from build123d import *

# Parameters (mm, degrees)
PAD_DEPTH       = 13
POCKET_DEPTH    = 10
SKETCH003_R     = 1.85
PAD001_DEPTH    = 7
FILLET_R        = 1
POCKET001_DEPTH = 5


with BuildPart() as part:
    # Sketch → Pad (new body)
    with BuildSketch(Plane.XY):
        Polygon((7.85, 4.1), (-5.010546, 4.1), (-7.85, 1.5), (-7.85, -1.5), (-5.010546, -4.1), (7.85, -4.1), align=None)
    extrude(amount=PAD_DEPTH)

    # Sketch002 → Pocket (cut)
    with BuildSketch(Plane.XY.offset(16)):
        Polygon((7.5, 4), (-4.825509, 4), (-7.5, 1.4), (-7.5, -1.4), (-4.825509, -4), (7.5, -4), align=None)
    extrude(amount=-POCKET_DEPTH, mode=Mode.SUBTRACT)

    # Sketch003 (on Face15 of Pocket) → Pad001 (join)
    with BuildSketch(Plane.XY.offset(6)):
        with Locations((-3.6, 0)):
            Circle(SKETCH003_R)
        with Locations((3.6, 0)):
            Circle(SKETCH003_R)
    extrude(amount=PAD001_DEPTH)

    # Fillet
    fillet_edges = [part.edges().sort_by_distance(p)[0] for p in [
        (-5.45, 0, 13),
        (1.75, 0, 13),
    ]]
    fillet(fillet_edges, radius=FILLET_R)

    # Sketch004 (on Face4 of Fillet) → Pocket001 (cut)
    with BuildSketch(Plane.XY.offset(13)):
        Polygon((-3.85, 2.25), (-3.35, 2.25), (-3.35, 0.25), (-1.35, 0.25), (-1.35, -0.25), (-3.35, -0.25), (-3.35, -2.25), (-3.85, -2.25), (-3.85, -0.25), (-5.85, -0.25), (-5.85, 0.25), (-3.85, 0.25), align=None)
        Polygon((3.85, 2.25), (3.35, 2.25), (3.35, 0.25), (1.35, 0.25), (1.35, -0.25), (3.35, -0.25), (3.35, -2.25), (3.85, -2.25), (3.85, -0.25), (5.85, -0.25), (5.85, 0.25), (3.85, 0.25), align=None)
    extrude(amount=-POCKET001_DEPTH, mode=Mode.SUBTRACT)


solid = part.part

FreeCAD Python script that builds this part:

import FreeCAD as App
import Part
import Sketcher


def edges_at(feature, points):
    """Names of the edges that pass closest to the given points."""
    edges = feature.Shape.Edges
    near = lambda p: min(range(len(edges)), key=lambda i: edges[i].distToShape(Part.Vertex(*p))[0])
    return sorted({f"Edge{near(p) + 1}" for p in points})


def add_polygon(sketch, points):
    """Adds a closed chain of lines whose ends are joined by coincident constraints."""
    first, n = sketch.GeometryCount, len(points)
    for a, b in zip(points, points[1:] + points[:1]):
        sketch.addGeometry(Part.LineSegment(App.Vector(*a, 0), App.Vector(*b, 0)), False)
    for i in range(n):
        sketch.addConstraint(Sketcher.Constraint("Coincident", first + i, 2, first + (i + 1) % n, 1))

doc = App.newDocument("Part")
body = doc.addObject("PartDesign::Body", "Body")

# Sketch on XY plane
sketch1 = body.newObject("Sketcher::SketchObject", "Sketch")
sketch1.AttachmentSupport = (doc.getObject("XY_Plane"), [""])
sketch1.MapMode = "FlatFace"
add_polygon(sketch1, [(7.8, 4.1), (-5, 4.1), (-7.8, 1.5), (-7.8, -1.5), (-5, -4.1), (7.8, -4.1)])  # lines 0-5
sketch1.addConstraint([
    Sketcher.Constraint("Horizontal", 0),
    Sketcher.Constraint("Vertical", 2),
    Sketcher.Constraint("Horizontal", 4),
    Sketcher.Constraint("Vertical", 5),
    Sketcher.Constraint("Symmetric", 0, 2, 3, 2, -1),
    Sketcher.Constraint("Equal", 1, 3),
    Sketcher.Constraint("DistanceY", 2, 2, 2, 1, 3.0),
    Sketcher.Constraint("DistanceY", 5, 1, 5, 2, 8.2),
    Sketcher.Constraint("DistanceX", 2, 2, 4, 2, 15.7),
    Sketcher.Constraint("Distance", 1, 3.85),
    Sketcher.Constraint("DistanceX", 1, 2, -1, 1, 7.85),
])
pad1 = body.newObject("PartDesign::Pad", "Pad")
pad1.Profile = sketch1
pad1.Length = 13

# Sketch on XY plane
sketch2 = body.newObject("Sketcher::SketchObject", "Sketch001")
sketch2.AttachmentSupport = (doc.getObject("XY_Plane"), [""])
sketch2.MapMode = "FlatFace"
sketch2.AttachmentOffset = App.Placement(App.Vector(0, 0, 16), App.Rotation())
add_polygon(sketch2, [(7.5, 4), (-4.8, 4), (-7.5, 1.4), (-7.5, -1.4), (-4.8, -4), (7.5, -4)])  # lines 0-5
sketch2.addConstraint([
    Sketcher.Constraint("Horizontal", 0),
    Sketcher.Constraint("Vertical", 2),
    Sketcher.Constraint("Horizontal", 4),
    Sketcher.Constraint("Vertical", 5),
    Sketcher.Constraint("Symmetric", 0, 2, 3, 2, -1),
    Sketcher.Constraint("Equal", 1, 3),
    Sketcher.Constraint("DistanceY", 5, 1, 5, 2, 8.0),
    Sketcher.Constraint("DistanceY", 2, 2, 2, 1, 2.8),
    Sketcher.Constraint("DistanceX", 2, 2, 4, 2, 15.0),
    Sketcher.Constraint("DistanceX", 1, 2, -1, 1, 7.5),
    Sketcher.Constraint("Distance", 1, 3.73),
])
pocket1 = body.newObject("PartDesign::Pocket", "Pocket")
pocket1.Profile = sketch2
pocket1.Length = 10

# Sketch on XY plane
sketch3 = body.newObject("Sketcher::SketchObject", "Sketch002")
sketch3.AttachmentSupport = (doc.getObject("XY_Plane"), [""])
sketch3.MapMode = "FlatFace"
sketch3.AttachmentOffset = App.Placement(App.Vector(0, 0, 6), App.Rotation())
sketch3.addGeometry([
    Part.Circle(App.Vector(-3.6, 0, 0), App.Vector(0, 0, 1), 1.9),
    Part.Circle(App.Vector(3.6, 0, 0), App.Vector(0, 0, 1), 1.9),
], False)
sketch3.addConstraint([
    Sketcher.Constraint("Equal", 0, 1),
    Sketcher.Constraint("Symmetric", 0, 3, 1, 3, -1, 1),
    Sketcher.Constraint("PointOnObject", 0, 3, -1),
    Sketcher.Constraint("Diameter", 0, 3.7),
    Sketcher.Constraint("DistanceX", 0, 3, -1, 1, 3.6),
])
pad2 = body.newObject("PartDesign::Pad", "Pad001")
pad2.Profile = sketch3
pad2.Length = 7
doc.recompute()

fillet = body.newObject("PartDesign::Fillet", "Fillet")
fillet.Base = (pad2, edges_at(pad2, [(-5.45, 0, 13), (1.75, 0, 13)]))
fillet.Radius = 1

# Sketch on XY plane
sketch4 = body.newObject("Sketcher::SketchObject", "Sketch003")
sketch4.AttachmentSupport = (doc.getObject("XY_Plane"), [""])
sketch4.MapMode = "FlatFace"
sketch4.AttachmentOffset = App.Placement(App.Vector(0, 0, 13), App.Rotation())
add_polygon(sketch4, [(-3.4, 2.2), (-3.9, 2.2), (-3.9, 0.2), (-5.8, 0.2), (-5.8, -0.2), (-3.9, -0.2), (-3.9, -2.2), (-3.4, -2.2), (-3.4, -0.2), (-1.4, -0.2), (-1.4, 0.2), (-3.4, 0.2)])  # lines 0-11
add_polygon(sketch4, [(3.9, 2.2), (3.4, 2.2), (3.4, 0.2), (1.4, 0.2), (1.4, -0.2), (3.4, -0.2), (3.4, -2.2), (3.9, -2.2), (3.9, -0.2), (5.8, -0.2), (5.8, 0.2), (3.9, 0.2)])  # lines 12-23
sketch4.addConstraint([
    Sketcher.Constraint("Horizontal", 0),
    Sketcher.Constraint("Vertical", 1),
    Sketcher.Constraint("Horizontal", 2),
    Sketcher.Constraint("Vertical", 3),
    Sketcher.Constraint("Horizontal", 4),
    Sketcher.Constraint("Vertical", 5),
    Sketcher.Constraint("Horizontal", 6),
    Sketcher.Constraint("Vertical", 7),
    Sketcher.Constraint("Horizontal", 8),
    Sketcher.Constraint("Vertical", 9),
    Sketcher.Constraint("Horizontal", 10),
    Sketcher.Constraint("Vertical", 11),
    Sketcher.Constraint("Horizontal", 12),
    Sketcher.Constraint("Vertical", 13),
    Sketcher.Constraint("Horizontal", 14),
    Sketcher.Constraint("Vertical", 15),
    Sketcher.Constraint("Horizontal", 16),
    Sketcher.Constraint("Vertical", 17),
    Sketcher.Constraint("Horizontal", 18),
    Sketcher.Constraint("Vertical", 19),
    Sketcher.Constraint("Horizontal", 20),
    Sketcher.Constraint("Vertical", 21),
    Sketcher.Constraint("Horizontal", 22),
    Sketcher.Constraint("Vertical", 23),
    Sketcher.Constraint("Symmetric", 6, 2, 12, 2, -1, 1),
    Sketcher.Constraint("Symmetric", 8, 2, 14, 2, -1, 1),
    Sketcher.Constraint("Symmetric", 10, 2, 16, 2, -1, 1),
    Sketcher.Constraint("Symmetric", 0, 2, 18, 2, -1, 1),
    Sketcher.Constraint("Symmetric", 2, 2, 20, 2, -1, 1),
    Sketcher.Constraint("Symmetric", 4, 2, 22, 2, -1, 1),
    Sketcher.Constraint("Symmetric", 11, 2, 12, 2, -2),
    Sketcher.Constraint("Symmetric", 4, 2, 19, 2, -2),
    Sketcher.Constraint("Horizontal", 4, 2, 7, 2),
    Sketcher.Constraint("Horizontal", 2, 2, 9, 2),
    Sketcher.Constraint("Equal", 4, 8),
    Sketcher.Constraint("Equal", 22, 1),
    Sketcher.Constraint("Equal", 18, 3),
    Sketcher.Constraint("DistanceX", 2, 2, 2, 1, 2.0),
    Sketcher.Constraint("DistanceX", 0, 2, 0, 1, 0.5),
    Sketcher.Constraint("DistanceX", 9, 2, 12, 2, 4.7),
])
pocket2 = body.newObject("PartDesign::Pocket", "Pocket001")
pocket2.Profile = sketch4
pocket2.Length = 5

doc.recompute()
